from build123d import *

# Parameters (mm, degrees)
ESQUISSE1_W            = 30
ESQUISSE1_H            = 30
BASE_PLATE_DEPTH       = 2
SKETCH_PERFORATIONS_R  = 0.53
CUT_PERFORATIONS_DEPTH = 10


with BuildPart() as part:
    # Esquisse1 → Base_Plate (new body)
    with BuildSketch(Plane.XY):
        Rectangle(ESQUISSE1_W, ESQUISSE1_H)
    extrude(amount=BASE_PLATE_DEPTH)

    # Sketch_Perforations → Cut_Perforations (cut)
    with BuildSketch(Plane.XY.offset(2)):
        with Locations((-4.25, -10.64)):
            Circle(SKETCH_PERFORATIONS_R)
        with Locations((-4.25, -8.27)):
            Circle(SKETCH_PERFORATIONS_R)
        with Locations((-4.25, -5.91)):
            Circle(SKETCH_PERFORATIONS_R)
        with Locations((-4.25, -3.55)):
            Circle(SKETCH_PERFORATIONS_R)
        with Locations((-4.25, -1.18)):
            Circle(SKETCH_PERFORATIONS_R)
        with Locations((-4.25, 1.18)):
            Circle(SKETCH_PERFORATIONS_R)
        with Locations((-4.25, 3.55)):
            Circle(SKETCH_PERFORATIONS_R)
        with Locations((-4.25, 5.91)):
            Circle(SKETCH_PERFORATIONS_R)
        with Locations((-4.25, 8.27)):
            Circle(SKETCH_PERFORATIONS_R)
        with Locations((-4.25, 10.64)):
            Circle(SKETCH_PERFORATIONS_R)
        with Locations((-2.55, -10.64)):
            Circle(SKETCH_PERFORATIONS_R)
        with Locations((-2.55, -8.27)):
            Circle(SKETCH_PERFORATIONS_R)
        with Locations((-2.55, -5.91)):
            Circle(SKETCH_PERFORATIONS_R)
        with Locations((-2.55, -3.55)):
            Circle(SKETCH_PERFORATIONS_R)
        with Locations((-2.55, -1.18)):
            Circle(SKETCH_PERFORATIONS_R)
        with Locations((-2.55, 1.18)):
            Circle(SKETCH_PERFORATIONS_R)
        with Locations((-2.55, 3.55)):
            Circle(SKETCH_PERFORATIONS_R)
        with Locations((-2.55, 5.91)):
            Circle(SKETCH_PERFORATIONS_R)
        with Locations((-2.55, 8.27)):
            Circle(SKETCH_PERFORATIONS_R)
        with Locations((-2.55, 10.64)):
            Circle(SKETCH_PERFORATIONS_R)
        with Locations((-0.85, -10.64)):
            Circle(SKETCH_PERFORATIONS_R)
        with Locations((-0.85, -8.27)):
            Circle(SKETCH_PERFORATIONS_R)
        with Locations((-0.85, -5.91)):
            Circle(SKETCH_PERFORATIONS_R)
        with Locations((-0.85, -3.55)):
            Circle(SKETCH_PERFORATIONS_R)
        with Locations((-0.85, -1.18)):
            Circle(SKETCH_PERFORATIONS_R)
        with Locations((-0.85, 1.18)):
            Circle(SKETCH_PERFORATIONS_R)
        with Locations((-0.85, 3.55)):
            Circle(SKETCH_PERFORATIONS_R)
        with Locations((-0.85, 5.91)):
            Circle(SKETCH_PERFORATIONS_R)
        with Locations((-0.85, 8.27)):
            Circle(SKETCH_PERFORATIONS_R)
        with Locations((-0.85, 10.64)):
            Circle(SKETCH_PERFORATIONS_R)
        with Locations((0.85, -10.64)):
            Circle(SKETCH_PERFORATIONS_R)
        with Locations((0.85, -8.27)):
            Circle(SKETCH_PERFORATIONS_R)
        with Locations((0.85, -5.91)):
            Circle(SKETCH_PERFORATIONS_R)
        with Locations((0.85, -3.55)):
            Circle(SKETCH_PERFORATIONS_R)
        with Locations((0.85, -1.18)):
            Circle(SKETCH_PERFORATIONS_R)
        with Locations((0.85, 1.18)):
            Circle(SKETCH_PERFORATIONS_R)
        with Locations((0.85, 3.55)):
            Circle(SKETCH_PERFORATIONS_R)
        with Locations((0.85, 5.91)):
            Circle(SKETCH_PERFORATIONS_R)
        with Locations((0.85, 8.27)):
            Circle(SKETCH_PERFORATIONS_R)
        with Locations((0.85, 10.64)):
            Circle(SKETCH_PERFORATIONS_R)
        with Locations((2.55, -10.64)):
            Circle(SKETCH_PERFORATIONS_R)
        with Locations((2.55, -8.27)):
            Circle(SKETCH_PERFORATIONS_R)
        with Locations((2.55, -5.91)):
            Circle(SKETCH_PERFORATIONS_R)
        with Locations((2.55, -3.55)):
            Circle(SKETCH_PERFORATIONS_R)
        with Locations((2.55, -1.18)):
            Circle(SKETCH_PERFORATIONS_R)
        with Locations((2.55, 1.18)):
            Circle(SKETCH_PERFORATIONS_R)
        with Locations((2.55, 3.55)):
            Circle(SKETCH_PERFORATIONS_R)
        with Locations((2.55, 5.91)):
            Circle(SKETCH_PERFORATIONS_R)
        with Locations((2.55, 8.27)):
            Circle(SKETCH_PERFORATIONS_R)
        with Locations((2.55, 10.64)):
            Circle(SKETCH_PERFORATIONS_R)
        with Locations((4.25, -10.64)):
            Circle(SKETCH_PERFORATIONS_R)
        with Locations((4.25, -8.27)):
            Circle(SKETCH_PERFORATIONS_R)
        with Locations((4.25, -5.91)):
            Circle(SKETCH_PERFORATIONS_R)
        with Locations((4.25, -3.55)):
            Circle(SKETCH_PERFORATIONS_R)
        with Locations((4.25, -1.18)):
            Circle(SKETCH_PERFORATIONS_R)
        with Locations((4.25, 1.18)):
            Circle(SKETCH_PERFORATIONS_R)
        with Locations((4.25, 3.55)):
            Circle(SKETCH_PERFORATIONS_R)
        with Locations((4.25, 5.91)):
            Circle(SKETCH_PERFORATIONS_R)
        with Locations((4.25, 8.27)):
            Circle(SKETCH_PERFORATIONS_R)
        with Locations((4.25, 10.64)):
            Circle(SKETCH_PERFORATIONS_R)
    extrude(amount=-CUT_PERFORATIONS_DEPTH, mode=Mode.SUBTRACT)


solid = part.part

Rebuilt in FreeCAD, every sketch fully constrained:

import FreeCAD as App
import Part
import Sketcher


def add_polygon(sketch, points):
    """Adds a closed chain of lines whose ends are joined by coincident constraints."""
    first, n = sketch.GeometryCount, len(points)
    for a, b in zip(points, points[1:] + points[:1]):
        sketch.addGeometry(Part.LineSegment(App.Vector(*a, 0), App.Vector(*b, 0)), False)
    for i in range(n):
        sketch.addConstraint(Sketcher.Constraint("Coincident", first + i, 2, first + (i + 1) % n, 1))

doc = App.newDocument("Part")
body = doc.addObject("PartDesign::Body", "Body")

sketch1 = body.newObject("Sketcher::SketchObject", "Sketch")
sketch1.AttachmentSupport = (doc.getObject("XY_Plane"), [""])
sketch1.MapMode = "FlatFace"
add_polygon(sketch1, [(-15, 15), (-15, -15), (15, -15), (15, 15)])
sketch1.addConstraint(Sketcher.Constraint("Vertical", 0))
sketch1.addConstraint(Sketcher.Constraint("Horizontal", 1))
sketch1.addConstraint(Sketcher.Constraint("Vertical", 2))
sketch1.addConstraint(Sketcher.Constraint("Horizontal", 3))
sketch1.addConstraint(Sketcher.Constraint("Symmetric", 0, 2, 2, 2, -1, 1))
sketch1.addConstraint(Sketcher.Constraint("Equal", 3, 0))
sketch1.addConstraint(Sketcher.Constraint("DistanceX", 1, 1, 1, 2, 30.0))
pad1 = body.newObject("PartDesign::Pad", "Pad")
pad1.Profile = sketch1
pad1.Length = 2

sketch2 = body.newObject("Sketcher::SketchObject", "Sketch001")
sketch2.AttachmentSupport = (doc.getObject("XY_Plane"), [""])
sketch2.MapMode = "FlatFace"
sketch2.AttachmentOffset = App.Placement(App.Vector(0, 0, 2), App.Rotation())
sketch2.addGeometry(Part.Circle(App.Vector(-4.2, -10.6, 0), App.Vector(0, 0, 1), 0.5), False)
sketch2.addGeometry(Part.Circle(App.Vector(-4.2, -8.3, 0), App.Vector(0, 0, 1), 0.5), False)
sketch2.addGeometry(Part.Circle(App.Vector(-4.2, -5.9, 0), App.Vector(0, 0, 1), 0.5), False)
sketch2.addGeometry(Part.Circle(App.Vector(-4.2, -3.5, 0), App.Vector(0, 0, 1), 0.5), False)
sketch2.addGeometry(Part.Circle(App.Vector(-4.2, -1.2, 0), App.Vector(0, 0, 1), 0.5), False)
sketch2.addGeometry(Part.Circle(App.Vector(-4.2, 1.2, 0), App.Vector(0, 0, 1), 0.5), False)
sketch2.addGeometry(Part.Circle(App.Vector(-4.2, 3.5, 0), App.Vector(0, 0, 1), 0.5), False)
sketch2.addGeometry(Part.Circle(App.Vector(-4.2, 5.9, 0), App.Vector(0, 0, 1), 0.5), False)
sketch2.addGeometry(Part.Circle(App.Vector(-4.2, 8.3, 0), App.Vector(0, 0, 1), 0.5), False)
sketch2.addGeometry(Part.Circle(App.Vector(-4.2, 10.6, 0), App.Vector(0, 0, 1), 0.5), False)
sketch2.addGeometry(Part.Circle(App.Vector(-2.5, -10.6, 0), App.Vector(0, 0, 1), 0.5), False)
sketch2.addGeometry(Part.Circle(App.Vector(-2.5, -8.3, 0), App.Vector(0, 0, 1), 0.5), False)
sketch2.addGeometry(Part.Circle(App.Vector(-2.5, -5.9, 0), App.Vector(0, 0, 1), 0.5), False)
sketch2.addGeometry(Part.Circle(App.Vector(-2.5, -3.5, 0), App.Vector(0, 0, 1), 0.5), False)
sketch2.addGeometry(Part.Circle(App.Vector(-2.5, -1.2, 0), App.Vector(0, 0, 1), 0.5), False)
sketch2.addGeometry(Part.Circle(App.Vector(-2.5, 1.2, 0), App.Vector(0, 0, 1), 0.5), False)
sketch2.addGeometry(Part.Circle(App.Vector(-2.5, 3.5, 0), App.Vector(0, 0, 1), 0.5), False)
sketch2.addGeometry(Part.Circle(App.Vector(-2.5, 5.9, 0), App.Vector(0, 0, 1), 0.5), False)
sketch2.addGeometry(Part.Circle(App.Vector(-2.5, 8.3, 0), App.Vector(0, 0, 1), 0.5), False)
sketch2.addGeometry(Part.Circle(App.Vector(-2.5, 10.6, 0), App.Vector(0, 0, 1), 0.5), False)
sketch2.addGeometry(Part.Circle(App.Vector(-0.8, -10.6, 0), App.Vector(0, 0, 1), 0.5), False)
sketch2.addGeometry(Part.Circle(App.Vector(-0.8, -8.3, 0), App.Vector(0, 0, 1), 0.5), False)
sketch2.addGeometry(Part.Circle(App.Vector(-0.8, -5.9, 0), App.Vector(0, 0, 1), 0.5), False)
sketch2.addGeometry(Part.Circle(App.Vector(-0.8, -3.5, 0), App.Vector(0, 0, 1), 0.5), False)
sketch2.addGeometry(Part.Circle(App.Vector(-0.8, -1.2, 0), App.Vector(0, 0, 1), 0.5), False)
sketch2.addGeometry(Part.Circle(App.Vector(-0.8, 1.2, 0), App.Vector(0, 0, 1), 0.5), False)
sketch2.addGeometry(Part.Circle(App.Vector(-0.8, 3.5, 0), App.Vector(0, 0, 1), 0.5), False)
sketch2.addGeometry(Part.Circle(App.Vector(-0.8, 5.9, 0), App.Vector(0, 0, 1), 0.5), False)
sketch2.addGeometry(Part.Circle(App.Vector(-0.8, 8.3, 0), App.Vector(0, 0, 1), 0.5), False)
sketch2.addGeometry(Part.Circle(App.Vector(-0.8, 10.6, 0), App.Vector(0, 0, 1), 0.5), False)
sketch2.addGeometry(Part.Circle(App.Vector(0.8, -10.6, 0), App.Vector(0, 0, 1), 0.5), False)
sketch2.addGeometry(Part.Circle(App.Vector(0.8, -8.3, 0), App.Vector(0, 0, 1), 0.5), False)
sketch2.addGeometry(Part.Circle(App.Vector(0.8, -5.9, 0), App.Vector(0, 0, 1), 0.5), False)
sketch2.addGeometry(Part.Circle(App.Vector(0.8, -3.5, 0), App.Vector(0, 0, 1), 0.5), False)
sketch2.addGeometry(Part.Circle(App.Vector(0.8, -1.2, 0), App.Vector(0, 0, 1), 0.5), False)
sketch2.addGeometry(Part.Circle(App.Vector(0.8, 1.2, 0), App.Vector(0, 0, 1), 0.5), False)
sketch2.addGeometry(Part.Circle(App.Vector(0.8, 3.5, 0), App.Vector(0, 0, 1), 0.5), False)
sketch2.addGeometry(Part.Circle(App.Vector(0.8, 5.9, 0), App.Vector(0, 0, 1), 0.5), False)
sketch2.addGeometry(Part.Circle(App.Vector(0.8, 8.3, 0), App.Vector(0, 0, 1), 0.5), False)
sketch2.addGeometry(Part.Circle(App.Vector(0.8, 10.6, 0), App.Vector(0, 0, 1), 0.5), False)
sketch2.addGeometry(Part.Circle(App.Vector(2.5, -10.6, 0), App.Vector(0, 0, 1), 0.5), False)
sketch2.addGeometry(Part.Circle(App.Vector(2.5, -8.3, 0), App.Vector(0, 0, 1), 0.5), False)
sketch2.addGeometry(Part.Circle(App.Vector(2.5, -5.9, 0), App.Vector(0, 0, 1), 0.5), False)
sketch2.addGeometry(Part.Circle(App.Vector(2.5, -3.5, 0), App.Vector(0, 0, 1), 0.5), False)
sketch2.addGeometry(Part.Circle(App.Vector(2.5, -1.2, 0), App.Vector(0, 0, 1), 0.5), False)
sketch2.addGeometry(Part.Circle(App.Vector(2.5, 1.2, 0), App.Vector(0, 0, 1), 0.5), False)
sketch2.addGeometry(Part.Circle(App.Vector(2.5, 3.5, 0), App.Vector(0, 0, 1), 0.5), False)
sketch2.addGeometry(Part.Circle(App.Vector(2.5, 5.9, 0), App.Vector(0, 0, 1), 0.5), False)
sketch2.addGeometry(Part.Circle(App.Vector(2.5, 8.3, 0), App.Vector(0, 0, 1), 0.5), False)
sketch2.addGeometry(Part.Circle(App.Vector(2.5, 10.6, 0), App.Vector(0, 0, 1), 0.5), False)
sketch2.addGeometry(Part.Circle(App.Vector(4.2, -10.6, 0), App.Vector(0, 0, 1), 0.5), False)
sketch2.addGeometry(Part.Circle(App.Vector(4.2, -8.3, 0), App.Vector(0, 0, 1), 0.5), False)
sketch2.addGeometry(Part.Circle(App.Vector(4.2, -5.9, 0), App.Vector(0, 0, 1), 0.5), False)
sketch2.addGeometry(Part.Circle(App.Vector(4.2, -3.5, 0), App.Vector(0, 0, 1), 0.5), False)
sketch2.addGeometry(Part.Circle(App.Vector(4.2, -1.2, 0), App.Vector(0, 0, 1), 0.5), False)
sketch2.addGeometry(Part.Circle(App.Vector(4.2, 1.2, 0), App.Vector(0, 0, 1), 0.5), False)
sketch2.addGeometry(Part.Circle(App.Vector(4.2, 3.5, 0), App.Vector(0, 0, 1), 0.5), False)
sketch2.addGeometry(Part.Circle(App.Vector(4.2, 5.9, 0), App.Vector(0, 0, 1), 0.5), False)
sketch2.addGeometry(Part.Circle(App.Vector(4.2, 8.3, 0), App.Vector(0, 0, 1), 0.5), False)
sketch2.addGeometry(Part.Circle(App.Vector(4.2, 10.6, 0), App.Vector(0, 0, 1), 0.5), False)
sketch2.addConstraint(Sketcher.Constraint("Equal", 0, 1))
sketch2.addConstraint(Sketcher.Constraint("Equal", 1, 2))
sketch2.addConstraint(Sketcher.Constraint("Equal", 2, 3))
sketch2.addConstraint(Sketcher.Constraint("Equal", 3, 4))
sketch2.addConstraint(Sketcher.Constraint("Equal", 4, 5))
sketch2.addConstraint(Sketcher.Constraint("Equal", 5, 6))
sketch2.addConstraint(Sketcher.Constraint("Equal", 6, 7))
sketch2.addConstraint(Sketcher.Constraint("Equal", 7, 8))
sketch2.addConstraint(Sketcher.Constraint("Equal", 8, 9))
sketch2.addConstraint(Sketcher.Constraint("Equal", 9, 10))
sketch2.addConstraint(Sketcher.Constraint("Equal", 10, 11))
sketch2.addConstraint(Sketcher.Constraint("Equal", 11, 12))
sketch2.addConstraint(Sketcher.Constraint("Equal", 12, 13))
sketch2.addConstraint(Sketcher.Constraint("Equal", 13, 14))
sketch2.addConstraint(Sketcher.Constraint("Equal", 14, 15))
sketch2.addConstraint(Sketcher.Constraint("Equal", 15, 16))
sketch2.addConstraint(Sketcher.Constraint("Equal", 16, 17))
sketch2.addConstraint(Sketcher.Constraint("Equal", 17, 18))
sketch2.addConstraint(Sketcher.Constraint("Equal", 18, 19))
sketch2.addConstraint(Sketcher.Constraint("Equal", 19, 20))
sketch2.addConstraint(Sketcher.Constraint("Equal", 20, 21))
sketch2.addConstraint(Sketcher.Constraint("Equal", 21, 22))
sketch2.addConstraint(Sketcher.Constraint("Equal", 22, 23))
sketch2.addConstraint(Sketcher.Constraint("Equal", 23, 24))
sketch2.addConstraint(Sketcher.Constraint("Equal", 24, 25))
sketch2.addConstraint(Sketcher.Constraint("Equal", 25, 26))
sketch2.addConstraint(Sketcher.Constraint("Equal", 26, 27))
sketch2.addConstraint(Sketcher.Constraint("Equal", 27, 28))
sketch2.addConstraint(Sketcher.Constraint("Equal", 28, 29))
sketch2.addConstraint(Sketcher.Constraint("Equal", 29, 30))
sketch2.addConstraint(Sketcher.Constraint("Equal", 30, 31))
sketch2.addConstraint(Sketcher.Constraint("Equal", 31, 32))
sketch2.addConstraint(Sketcher.Constraint("Equal", 32, 33))
sketch2.addConstraint(Sketcher.Constraint("Equal", 33, 34))
sketch2.addConstraint(Sketcher.Constraint("Equal", 34, 35))
sketch2.addConstraint(Sketcher.Constraint("Equal", 35, 36))
sketch2.addConstraint(Sketcher.Constraint("Equal", 36, 37))
sketch2.addConstraint(Sketcher.Constraint("Equal", 37, 38))
sketch2.addConstraint(Sketcher.Constraint("Equal", 38, 39))
sketch2.addConstraint(Sketcher.Constraint("Equal", 39, 40))
sketch2.addConstraint(Sketcher.Constraint("Equal", 40, 41))
sketch2.addConstraint(Sketcher.Constraint("Equal", 41, 42))
sketch2.addConstraint(Sketcher.Constraint("Equal", 42, 43))
sketch2.addConstraint(Sketcher.Constraint("Equal", 43, 44))
sketch2.addConstraint(Sketcher.Constraint("Equal", 44, 45))
sketch2.addConstraint(Sketcher.Constraint("Equal", 45, 46))
sketch2.addConstraint(Sketcher.Constraint("Equal", 46, 47))
sketch2.addConstraint(Sketcher.Constraint("Equal", 47, 48))
sketch2.addConstraint(Sketcher.Constraint("Equal", 48, 49))
sketch2.addConstraint(Sketcher.Constraint("Equal", 49, 50))
sketch2.addConstraint(Sketcher.Constraint("Equal", 50, 51))
sketch2.addConstraint(Sketcher.Constraint("Equal", 51, 52))
sketch2.addConstraint(Sketcher.Constraint("Equal", 52, 53))
sketch2.addConstraint(Sketcher.Constraint("Equal", 53, 54))
sketch2.addConstraint(Sketcher.Constraint("Equal", 54, 55))
sketch2.addConstraint(Sketcher.Constraint("Equal", 55, 56))
sketch2.addConstraint(Sketcher.Constraint("Equal", 56, 57))
sketch2.addConstraint(Sketcher.Constraint("Equal", 57, 58))
sketch2.addConstraint(Sketcher.Constraint("Equal", 58, 59))
sketch2.addConstraint(Sketcher.Constraint("Symmetric", 29, 3, 30, 3, -1, 1))
sketch2.addConstraint(Sketcher.Constraint("Symmetric", 28, 3, 31, 3, -1, 1))
sketch2.addConstraint(Sketcher.Constraint("Symmetric", 27, 3, 32, 3, -1, 1))
sketch2.addConstraint(Sketcher.Constraint("Symmetric", 26, 3, 33, 3, -1, 1))
sketch2.addConstraint(Sketcher.Constraint("Symmetric", 25, 3, 34, 3, -1, 1))
sketch2.addConstraint(Sketcher.Constraint("Symmetric", 24, 3, 35, 3, -1, 1))
sketch2.addConstraint(Sketcher.Constraint("Symmetric", 23, 3, 36, 3, -1, 1))
sketch2.addConstraint(Sketcher.Constraint("Symmetric", 22, 3, 37, 3, -1, 1))
sketch2.addConstraint(Sketcher.Constraint("Symmetric", 21, 3, 38, 3, -1, 1))
sketch2.addConstraint(Sketcher.Constraint("Symmetric", 20, 3, 39, 3, -1, 1))
sketch2.addConstraint(Sketcher.Constraint("Symmetric", 19, 3, 40, 3, -1, 1))
sketch2.addConstraint(Sketcher.Constraint("Symmetric", 18, 3, 41, 3, -1, 1))
sketch2.addConstraint(Sketcher.Constraint("Symmetric", 17, 3, 42, 3, -1, 1))
sketch2.addConstraint(Sketcher.Constraint("Symmetric", 16, 3, 43, 3, -1, 1))
sketch2.addConstraint(Sketcher.Constraint("Symmetric", 15, 3, 44, 3, -1, 1))
sketch2.addConstraint(Sketcher.Constraint("Symmetric", 14, 3, 45, 3, -1, 1))
sketch2.addConstraint(Sketcher.Constraint("Symmetric", 13, 3, 46, 3, -1, 1))
sketch2.addConstraint(Sketcher.Constraint("Symmetric", 12, 3, 47, 3, -1, 1))
sketch2.addConstraint(Sketcher.Constraint("Symmetric", 11, 3, 48, 3, -1, 1))
sketch2.addConstraint(Sketcher.Constraint("Symmetric", 10, 3, 49, 3, -1, 1))
sketch2.addConstraint(Sketcher.Constraint("Symmetric", 9, 3, 50, 3, -1, 1))
sketch2.addConstraint(Sketcher.Constraint("Symmetric", 8, 3, 51, 3, -1, 1))
sketch2.addConstraint(Sketcher.Constraint("Symmetric", 7, 3, 52, 3, -1, 1))
sketch2.addConstraint(Sketcher.Constraint("Symmetric", 6, 3, 53, 3, -1, 1))
sketch2.addConstraint(Sketcher.Constraint("Symmetric", 5, 3, 54, 3, -1, 1))
sketch2.addConstraint(Sketcher.Constraint("Symmetric", 4, 3, 55, 3, -1, 1))
sketch2.addConstraint(Sketcher.Constraint("Symmetric", 3, 3, 56, 3, -1, 1))
sketch2.addConstraint(Sketcher.Constraint("Symmetric", 2, 3, 57, 3, -1, 1))
sketch2.addConstraint(Sketcher.Constraint("Symmetric", 1, 3, 58, 3, -1, 1))
sketch2.addConstraint(Sketcher.Constraint("Symmetric", 0, 3, 59, 3, -1, 1))
sketch2.addConstraint(Sketcher.Constraint("Symmetric", 20, 3, 30, 3, -2))
sketch2.addConstraint(Sketcher.Constraint("Symmetric", 21, 3, 31, 3, -2))
sketch2.addConstraint(Sketcher.Constraint("Symmetric", 22, 3, 32, 3, -2))
sketch2.addConstraint(Sketcher.Constraint("Symmetric", 23, 3, 33, 3, -2))
sketch2.addConstraint(Sketcher.Constraint("Symmetric", 24, 3, 34, 3, -2))
sketch2.addConstraint(Sketcher.Constraint("Symmetric", 10, 3, 40, 3, -2))
sketch2.addConstraint(Sketcher.Constraint("Symmetric", 11, 3, 41, 3, -2))
sketch2.addConstraint(Sketcher.Constraint("Symmetric", 12, 3, 42, 3, -2))
sketch2.addConstraint(Sketcher.Constraint("Symmetric", 13, 3, 43, 3, -2))
sketch2.addConstraint(Sketcher.Constraint("Symmetric", 14, 3, 44, 3, -2))
sketch2.addConstraint(Sketcher.Constraint("Symmetric", 0, 3, 50, 3, -2))
sketch2.addConstraint(Sketcher.Constraint("Symmetric", 1, 3, 51, 3, -2))
sketch2.addConstraint(Sketcher.Constraint("Symmetric", 2, 3, 52, 3, -2))
sketch2.addConstraint(Sketcher.Constraint("Symmetric", 3, 3, 53, 3, -2))
sketch2.addConstraint(Sketcher.Constraint("Symmetric", 4, 3, 54, 3, -2))
sketch2.addConstraint(Sketcher.Constraint("Horizontal", 0, 3, 10, 3))
sketch2.addConstraint(Sketcher.Constraint("Horizontal", 1, 3, 11, 3))
sketch2.addConstraint(Sketcher.Constraint("Horizontal", 2, 3, 12, 3))
sketch2.addConstraint(Sketcher.Constraint("Horizontal", 3, 3, 13, 3))
sketch2.addConstraint(Sketcher.Constraint("Horizontal", 4, 3, 14, 3))
sketch2.addConstraint(Sketcher.Constraint("Horizontal", 10, 3, 20, 3))
sketch2.addConstraint(Sketcher.Constraint("Horizontal", 11, 3, 21, 3))
sketch2.addConstraint(Sketcher.Constraint("Horizontal", 12, 3, 22, 3))
sketch2.addConstraint(Sketcher.Constraint("Horizontal", 13, 3, 23, 3))
sketch2.addConstraint(Sketcher.Constraint("Horizontal", 14, 3, 24, 3))
sketch2.addConstraint(Sketcher.Constraint("Vertical", 0, 3, 1, 3))
sketch2.addConstraint(Sketcher.Constraint("Vertical", 1, 3, 2, 3))
sketch2.addConstraint(Sketcher.Constraint("Vertical", 2, 3, 3, 3))
sketch2.addConstraint(Sketcher.Constraint("Vertical", 3, 3, 4, 3))
sketch2.addConstraint(Sketcher.Constraint("Vertical", 10, 3, 11, 3))
sketch2.addConstraint(Sketcher.Constraint("Vertical", 11, 3, 12, 3))
sketch2.addConstraint(Sketcher.Constraint("Vertical", 12, 3, 13, 3))
sketch2.addConstraint(Sketcher.Constraint("Vertical", 13, 3, 14, 3))
sketch2.addConstraint(Sketcher.Constraint("Vertical", 20, 3, 21, 3))
sketch2.addConstraint(Sketcher.Constraint("Vertical", 21, 3, 22, 3))
sketch2.addConstraint(Sketcher.Constraint("Vertical", 22, 3, 23, 3))
sketch2.addConstraint(Sketcher.Constraint("Vertical", 23, 3, 24, 3))
sketch2.addConstraint(Sketcher.Constraint("Diameter", 0, 1.06))
sketch2.addConstraint(Sketcher.Constraint("DistanceY", 3, 3, 6, 3, 7.1))
sketch2.addConstraint(Sketcher.Constraint("DistanceX", 0, 3, 10, 3, 1.7))
sketch2.addConstraint(Sketcher.Constraint("DistanceX", 10, 3, 20, 3, 1.7))
sketch2.addConstraint(Sketcher.Constraint("DistanceX", 20, 3, 30, 3, 1.7))
sketch2.addConstraint(Sketcher.Constraint("DistanceY", 0, 3, -1, 1, 10.64))
sketch2.addConstraint(Sketcher.Constraint("DistanceY", 1, 3, -1, 1, 8.27))
sketch2.addConstraint(Sketcher.Constraint("DistanceY", 2, 3, -1, 1, 5.91))
sketch2.addConstraint(Sketcher.Constraint("DistanceY", 4, 3, -1, 1, 1.18))
pocket1 = body.newObject("PartDesign::Pocket", "Pocket")
pocket1.Profile = sketch2
pocket1.Length = 10

doc.recompute()
